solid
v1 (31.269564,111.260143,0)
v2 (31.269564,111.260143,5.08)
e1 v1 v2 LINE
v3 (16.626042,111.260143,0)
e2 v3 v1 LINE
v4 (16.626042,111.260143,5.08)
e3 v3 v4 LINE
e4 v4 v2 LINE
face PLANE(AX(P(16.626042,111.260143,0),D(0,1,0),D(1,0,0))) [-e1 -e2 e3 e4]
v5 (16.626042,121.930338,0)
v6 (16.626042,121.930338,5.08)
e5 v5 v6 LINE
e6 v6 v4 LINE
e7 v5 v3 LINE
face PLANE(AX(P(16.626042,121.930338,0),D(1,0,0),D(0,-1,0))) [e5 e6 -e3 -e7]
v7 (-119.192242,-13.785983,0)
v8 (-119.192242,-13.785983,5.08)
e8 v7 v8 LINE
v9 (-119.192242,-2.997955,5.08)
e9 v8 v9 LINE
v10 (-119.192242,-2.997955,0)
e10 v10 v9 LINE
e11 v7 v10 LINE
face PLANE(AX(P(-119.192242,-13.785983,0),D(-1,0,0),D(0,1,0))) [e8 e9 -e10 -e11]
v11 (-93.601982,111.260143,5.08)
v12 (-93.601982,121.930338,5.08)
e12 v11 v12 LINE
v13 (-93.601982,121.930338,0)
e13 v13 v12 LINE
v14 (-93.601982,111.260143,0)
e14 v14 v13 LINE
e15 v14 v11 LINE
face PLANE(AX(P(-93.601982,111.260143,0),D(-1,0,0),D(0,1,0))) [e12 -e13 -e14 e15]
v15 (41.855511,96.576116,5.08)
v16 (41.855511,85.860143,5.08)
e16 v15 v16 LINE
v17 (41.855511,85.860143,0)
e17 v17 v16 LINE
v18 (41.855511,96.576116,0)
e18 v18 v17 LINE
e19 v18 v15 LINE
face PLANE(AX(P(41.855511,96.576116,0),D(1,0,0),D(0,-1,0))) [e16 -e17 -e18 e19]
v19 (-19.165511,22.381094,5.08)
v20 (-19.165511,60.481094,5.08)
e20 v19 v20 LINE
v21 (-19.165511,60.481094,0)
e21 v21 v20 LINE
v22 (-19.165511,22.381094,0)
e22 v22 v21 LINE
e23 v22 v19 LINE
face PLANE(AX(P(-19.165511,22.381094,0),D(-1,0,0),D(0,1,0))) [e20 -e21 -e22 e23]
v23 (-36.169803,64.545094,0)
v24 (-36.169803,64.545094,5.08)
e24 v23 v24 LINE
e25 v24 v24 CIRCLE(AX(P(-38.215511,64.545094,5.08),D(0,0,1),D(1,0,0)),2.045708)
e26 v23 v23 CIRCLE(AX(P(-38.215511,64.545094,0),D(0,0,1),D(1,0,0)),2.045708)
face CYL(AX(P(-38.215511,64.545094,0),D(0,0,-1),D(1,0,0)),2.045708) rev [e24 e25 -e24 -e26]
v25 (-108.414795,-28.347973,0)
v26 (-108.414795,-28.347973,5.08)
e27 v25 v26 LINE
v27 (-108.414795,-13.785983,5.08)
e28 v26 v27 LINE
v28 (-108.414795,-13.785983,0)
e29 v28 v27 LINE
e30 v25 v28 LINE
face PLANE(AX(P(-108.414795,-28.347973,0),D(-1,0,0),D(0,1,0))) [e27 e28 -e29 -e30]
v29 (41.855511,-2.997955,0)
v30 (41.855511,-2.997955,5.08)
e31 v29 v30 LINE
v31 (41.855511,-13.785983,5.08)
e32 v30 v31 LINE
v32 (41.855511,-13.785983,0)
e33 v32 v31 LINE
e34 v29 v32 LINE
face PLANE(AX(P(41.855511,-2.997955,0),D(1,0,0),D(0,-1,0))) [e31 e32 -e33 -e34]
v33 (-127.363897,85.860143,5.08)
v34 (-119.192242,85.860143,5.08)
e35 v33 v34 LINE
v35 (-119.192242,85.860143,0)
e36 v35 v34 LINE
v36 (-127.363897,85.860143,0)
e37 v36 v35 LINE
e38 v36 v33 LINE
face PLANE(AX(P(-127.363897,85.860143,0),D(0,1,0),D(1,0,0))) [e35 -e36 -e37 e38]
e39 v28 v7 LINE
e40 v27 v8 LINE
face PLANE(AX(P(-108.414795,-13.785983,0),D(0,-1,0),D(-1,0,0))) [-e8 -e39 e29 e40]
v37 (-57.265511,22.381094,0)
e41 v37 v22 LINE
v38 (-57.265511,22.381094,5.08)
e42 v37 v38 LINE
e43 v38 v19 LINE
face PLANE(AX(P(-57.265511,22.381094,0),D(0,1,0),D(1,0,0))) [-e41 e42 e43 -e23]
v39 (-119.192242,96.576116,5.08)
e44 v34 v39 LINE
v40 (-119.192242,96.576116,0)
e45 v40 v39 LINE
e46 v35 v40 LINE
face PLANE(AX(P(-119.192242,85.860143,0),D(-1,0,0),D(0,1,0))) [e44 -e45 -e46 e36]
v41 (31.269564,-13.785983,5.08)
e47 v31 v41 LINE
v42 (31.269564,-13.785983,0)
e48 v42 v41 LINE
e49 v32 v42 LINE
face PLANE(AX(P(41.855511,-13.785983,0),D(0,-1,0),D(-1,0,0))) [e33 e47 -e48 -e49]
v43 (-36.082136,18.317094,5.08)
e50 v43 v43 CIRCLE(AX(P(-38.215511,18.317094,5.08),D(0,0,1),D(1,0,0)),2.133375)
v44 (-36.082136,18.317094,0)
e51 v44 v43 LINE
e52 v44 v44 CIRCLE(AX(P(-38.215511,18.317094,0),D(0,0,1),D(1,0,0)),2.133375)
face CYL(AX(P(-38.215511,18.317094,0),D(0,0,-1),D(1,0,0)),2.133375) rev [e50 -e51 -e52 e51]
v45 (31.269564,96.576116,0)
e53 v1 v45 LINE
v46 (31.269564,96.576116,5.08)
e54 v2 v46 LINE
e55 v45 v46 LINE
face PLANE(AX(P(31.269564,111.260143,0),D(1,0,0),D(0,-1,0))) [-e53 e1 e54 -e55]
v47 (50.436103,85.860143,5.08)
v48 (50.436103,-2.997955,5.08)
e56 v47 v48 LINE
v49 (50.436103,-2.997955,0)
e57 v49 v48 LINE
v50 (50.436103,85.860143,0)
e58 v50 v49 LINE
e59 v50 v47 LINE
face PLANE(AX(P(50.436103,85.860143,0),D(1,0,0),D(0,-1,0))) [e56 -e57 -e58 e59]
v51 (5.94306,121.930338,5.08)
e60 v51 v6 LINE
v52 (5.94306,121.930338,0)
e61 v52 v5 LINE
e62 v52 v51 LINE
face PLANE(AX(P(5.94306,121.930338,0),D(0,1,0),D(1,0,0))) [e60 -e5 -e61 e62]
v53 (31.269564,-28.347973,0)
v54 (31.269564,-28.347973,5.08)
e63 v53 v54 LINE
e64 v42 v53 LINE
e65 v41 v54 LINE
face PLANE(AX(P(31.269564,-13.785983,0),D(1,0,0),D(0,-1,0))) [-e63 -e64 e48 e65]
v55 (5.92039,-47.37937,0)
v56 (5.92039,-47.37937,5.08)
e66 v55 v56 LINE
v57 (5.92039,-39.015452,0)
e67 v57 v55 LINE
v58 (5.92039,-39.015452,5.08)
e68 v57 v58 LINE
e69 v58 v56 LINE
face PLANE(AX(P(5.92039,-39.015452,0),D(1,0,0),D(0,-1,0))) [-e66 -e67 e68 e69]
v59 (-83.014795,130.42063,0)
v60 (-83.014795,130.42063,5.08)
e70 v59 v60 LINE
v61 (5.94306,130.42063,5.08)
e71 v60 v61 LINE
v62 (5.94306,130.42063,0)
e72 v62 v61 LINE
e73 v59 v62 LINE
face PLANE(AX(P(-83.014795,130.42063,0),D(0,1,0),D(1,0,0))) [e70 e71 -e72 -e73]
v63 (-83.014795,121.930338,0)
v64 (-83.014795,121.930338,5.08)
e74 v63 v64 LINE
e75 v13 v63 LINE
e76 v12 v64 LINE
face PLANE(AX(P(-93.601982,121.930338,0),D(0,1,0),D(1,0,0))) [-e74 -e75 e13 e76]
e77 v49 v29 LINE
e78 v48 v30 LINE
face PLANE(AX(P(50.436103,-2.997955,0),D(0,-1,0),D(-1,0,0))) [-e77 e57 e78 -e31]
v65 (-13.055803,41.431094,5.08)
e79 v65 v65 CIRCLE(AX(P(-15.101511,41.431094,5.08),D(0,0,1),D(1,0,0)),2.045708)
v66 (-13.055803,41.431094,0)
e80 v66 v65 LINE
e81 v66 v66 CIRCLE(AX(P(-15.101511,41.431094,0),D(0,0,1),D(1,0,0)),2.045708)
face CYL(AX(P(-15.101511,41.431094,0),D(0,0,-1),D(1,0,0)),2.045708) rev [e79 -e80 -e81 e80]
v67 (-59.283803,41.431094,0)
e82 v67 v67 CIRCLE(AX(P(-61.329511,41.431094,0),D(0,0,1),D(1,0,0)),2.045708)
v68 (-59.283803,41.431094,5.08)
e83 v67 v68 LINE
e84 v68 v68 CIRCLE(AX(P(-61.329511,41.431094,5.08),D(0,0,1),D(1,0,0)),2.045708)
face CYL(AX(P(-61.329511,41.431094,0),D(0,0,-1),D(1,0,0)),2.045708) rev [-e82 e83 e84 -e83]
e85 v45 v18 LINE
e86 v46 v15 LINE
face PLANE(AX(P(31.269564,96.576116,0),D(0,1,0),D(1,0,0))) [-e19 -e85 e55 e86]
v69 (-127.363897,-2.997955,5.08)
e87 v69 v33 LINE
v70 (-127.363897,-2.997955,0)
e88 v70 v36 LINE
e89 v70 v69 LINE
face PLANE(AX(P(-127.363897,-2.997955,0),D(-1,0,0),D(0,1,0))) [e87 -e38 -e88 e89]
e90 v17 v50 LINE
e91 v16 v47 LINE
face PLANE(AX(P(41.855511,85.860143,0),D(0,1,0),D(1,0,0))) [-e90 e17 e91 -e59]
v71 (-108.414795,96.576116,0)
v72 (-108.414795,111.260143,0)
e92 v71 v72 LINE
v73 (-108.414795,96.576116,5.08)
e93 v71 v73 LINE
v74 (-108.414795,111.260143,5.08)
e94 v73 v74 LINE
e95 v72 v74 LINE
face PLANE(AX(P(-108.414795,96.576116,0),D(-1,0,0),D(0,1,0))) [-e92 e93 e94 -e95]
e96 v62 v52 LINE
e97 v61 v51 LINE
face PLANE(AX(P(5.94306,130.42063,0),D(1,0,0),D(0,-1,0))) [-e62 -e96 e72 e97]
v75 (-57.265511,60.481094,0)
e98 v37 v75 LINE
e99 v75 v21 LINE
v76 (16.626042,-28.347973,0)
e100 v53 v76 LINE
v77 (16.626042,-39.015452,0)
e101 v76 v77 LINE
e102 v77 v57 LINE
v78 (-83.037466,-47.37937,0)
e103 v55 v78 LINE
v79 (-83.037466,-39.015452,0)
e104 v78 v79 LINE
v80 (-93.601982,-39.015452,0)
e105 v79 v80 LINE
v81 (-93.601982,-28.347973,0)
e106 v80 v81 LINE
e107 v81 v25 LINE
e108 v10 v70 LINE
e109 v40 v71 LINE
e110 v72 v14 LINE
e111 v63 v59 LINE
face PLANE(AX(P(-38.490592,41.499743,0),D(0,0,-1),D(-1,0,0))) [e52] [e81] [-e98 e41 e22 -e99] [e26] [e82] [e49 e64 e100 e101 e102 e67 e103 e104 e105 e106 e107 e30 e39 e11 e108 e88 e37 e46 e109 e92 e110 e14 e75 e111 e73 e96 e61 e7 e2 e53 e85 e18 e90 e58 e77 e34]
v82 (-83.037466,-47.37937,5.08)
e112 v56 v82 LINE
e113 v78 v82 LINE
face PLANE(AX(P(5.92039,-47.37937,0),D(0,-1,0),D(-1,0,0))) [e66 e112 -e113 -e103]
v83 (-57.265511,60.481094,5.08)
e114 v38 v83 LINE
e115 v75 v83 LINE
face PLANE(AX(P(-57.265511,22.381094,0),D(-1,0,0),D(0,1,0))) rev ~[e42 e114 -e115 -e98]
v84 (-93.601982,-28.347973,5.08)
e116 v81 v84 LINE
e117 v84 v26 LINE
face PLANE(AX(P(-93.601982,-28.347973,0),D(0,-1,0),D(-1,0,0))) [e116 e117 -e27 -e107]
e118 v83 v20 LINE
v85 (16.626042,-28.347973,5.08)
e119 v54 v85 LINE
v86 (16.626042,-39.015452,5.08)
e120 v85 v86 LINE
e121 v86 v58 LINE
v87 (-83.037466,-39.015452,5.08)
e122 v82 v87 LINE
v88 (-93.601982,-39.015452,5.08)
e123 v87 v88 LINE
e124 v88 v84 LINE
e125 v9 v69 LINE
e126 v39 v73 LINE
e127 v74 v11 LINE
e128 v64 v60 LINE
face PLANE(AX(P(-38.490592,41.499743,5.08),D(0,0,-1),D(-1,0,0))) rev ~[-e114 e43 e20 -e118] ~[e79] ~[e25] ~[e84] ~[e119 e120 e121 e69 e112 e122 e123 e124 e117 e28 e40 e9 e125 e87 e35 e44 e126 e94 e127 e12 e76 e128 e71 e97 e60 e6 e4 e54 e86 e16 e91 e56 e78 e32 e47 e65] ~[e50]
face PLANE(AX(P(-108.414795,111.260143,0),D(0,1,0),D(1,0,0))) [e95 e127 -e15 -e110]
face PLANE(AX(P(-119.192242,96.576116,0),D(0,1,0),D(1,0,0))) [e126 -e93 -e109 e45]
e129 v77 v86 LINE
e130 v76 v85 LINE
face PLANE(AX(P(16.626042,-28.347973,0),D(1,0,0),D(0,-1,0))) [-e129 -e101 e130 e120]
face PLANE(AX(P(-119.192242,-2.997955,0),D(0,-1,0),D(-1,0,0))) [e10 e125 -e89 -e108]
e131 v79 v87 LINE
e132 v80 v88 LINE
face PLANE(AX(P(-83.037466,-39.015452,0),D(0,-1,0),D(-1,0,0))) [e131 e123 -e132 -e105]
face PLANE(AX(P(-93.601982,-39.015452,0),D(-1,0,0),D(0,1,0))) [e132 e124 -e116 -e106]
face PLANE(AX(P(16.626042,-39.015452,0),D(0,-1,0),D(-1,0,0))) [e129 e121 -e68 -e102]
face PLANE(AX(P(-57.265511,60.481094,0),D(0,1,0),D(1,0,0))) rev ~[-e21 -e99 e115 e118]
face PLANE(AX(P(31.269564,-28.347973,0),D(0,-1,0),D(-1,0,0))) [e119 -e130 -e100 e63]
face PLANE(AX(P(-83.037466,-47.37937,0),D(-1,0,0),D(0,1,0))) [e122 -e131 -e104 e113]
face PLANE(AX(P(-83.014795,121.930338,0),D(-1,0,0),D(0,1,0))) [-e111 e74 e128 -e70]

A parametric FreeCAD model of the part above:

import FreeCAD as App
import Part
import Sketcher
Q = App.Units.Quantity

doc = App.newDocument("Part")
body = doc.addObject("PartDesign::Body", "Body")

sketch1 = doc.addObject("Sketcher::SketchObject", "Sketch")
body.addObject(sketch1)
sketch1.AttachmentSupport = (doc.XY_Plane, [""])
sketch1.MapMode = "FlatFace"
sketch1.addGeometry(Part.LineSegment(App.Vector(5.94306, 130.42063, 0), App.Vector(-83.014795, 130.42063, 0)), False)
sketch1.addGeometry(Part.LineSegment(App.Vector(-83.014795, 130.42063, 0), App.Vector(-83.014795, 121.930338, 0)), False)
sketch1.addGeometry(Part.LineSegment(App.Vector(-83.014795, 121.930338, 0), App.Vector(-93.601982, 121.930338, 0)), False)
sketch1.addGeometry(Part.LineSegment(App.Vector(-93.601982, 121.930338, 0), App.Vector(-93.601982, 111.260143, 0)), False)
sketch1.addGeometry(Part.LineSegment(App.Vector(-93.601982, 111.260143, 0), App.Vector(-108.414795, 111.260143, 0)), False)
sketch1.addGeometry(Part.LineSegment(App.Vector(-108.414795, 111.260143, 0), App.Vector(-108.414795, 96.576116, 0)), False)
sketch1.addGeometry(Part.LineSegment(App.Vector(-108.414795, 96.576116, 0), App.Vector(-119.192242, 96.576116, 0)), False)
sketch1.addGeometry(Part.LineSegment(App.Vector(-119.192242, 96.576116, 0), App.Vector(-119.192242, 85.860143, 0)), False)
sketch1.addGeometry(Part.LineSegment(App.Vector(-119.192242, 85.860143, 0), App.Vector(-127.363897, 85.860143, 0)), False)
sketch1.addGeometry(Part.LineSegment(App.Vector(-127.363897, 85.860143, 0), App.Vector(-127.363897, -2.997955, 0)), False)
sketch1.addGeometry(Part.LineSegment(App.Vector(-127.363897, -2.997955, 0), App.Vector(-119.192242, -2.997955, 0)), False)
sketch1.addGeometry(Part.LineSegment(App.Vector(-119.192242, -2.997955, 0), App.Vector(-119.192242, -13.785983, 0)), False)
sketch1.addGeometry(Part.LineSegment(App.Vector(-119.192242, -13.785983, 0), App.Vector(-108.414795, -13.785983, 0)), False)
sketch1.addGeometry(Part.LineSegment(App.Vector(-108.414795, -13.785983, 0), App.Vector(-108.414795, -28.347973, 0)), False)
sketch1.addGeometry(Part.LineSegment(App.Vector(-108.414795, -28.347973, 0), App.Vector(-93.601982, -28.347973, 0)), False)
sketch1.addGeometry(Part.LineSegment(App.Vector(-93.601982, -28.347973, 0), App.Vector(-93.601982, -39.015452, 0)), False)
sketch1.addGeometry(Part.LineSegment(App.Vector(-93.601982, -39.015452, 0), App.Vector(-83.037466, -39.015452, 0)), False)
sketch1.addGeometry(Part.LineSegment(App.Vector(-83.037466, -39.015452, 0), App.Vector(-83.037466, -47.37937, 0)), False)
sketch1.addGeometry(Part.LineSegment(App.Vector(-83.037466, -47.37937, 0), App.Vector(5.92039, -47.37937, 0)), False)
sketch1.addGeometry(Part.LineSegment(App.Vector(5.92039, -47.37937, 0), App.Vector(5.92039, -39.015452, 0)), False)
sketch1.addGeometry(Part.LineSegment(App.Vector(5.92039, -39.015452, 0), App.Vector(16.626042, -39.015452, 0)), False)
sketch1.addGeometry(Part.LineSegment(App.Vector(16.626042, -39.015452, 0), App.Vector(16.626042, -28.347973, 0)), False)
sketch1.addGeometry(Part.LineSegment(App.Vector(16.626042, -28.347973, 0), App.Vector(31.269564, -28.347973, 0)), False)
sketch1.addGeometry(Part.LineSegment(App.Vector(31.269564, -28.347973, 0), App.Vector(31.269564, -13.785983, 0)), False)
sketch1.addGeometry(Part.LineSegment(App.Vector(31.269564, -13.785983, 0), App.Vector(41.855511, -13.785983, 0)), False)
sketch1.addGeometry(Part.LineSegment(App.Vector(41.855511, -13.785983, 0), App.Vector(41.855511, -2.997955, 0)), False)
sketch1.addGeometry(Part.LineSegment(App.Vector(41.855511, -2.997955, 0), App.Vector(50.436103, -2.997955, 0)), False)
sketch1.addGeometry(Part.LineSegment(App.Vector(50.436103, -2.997955, 0), App.Vector(50.436103, 85.860143, 0)), False)
sketch1.addGeometry(Part.LineSegment(App.Vector(50.436103, 85.860143, 0), App.Vector(41.855511, 85.860143, 0)), False)
sketch1.addGeometry(Part.LineSegment(App.Vector(41.855511, 85.860143, 0), App.Vector(41.855511, 96.576116, 0)), False)
sketch1.addGeometry(Part.LineSegment(App.Vector(41.855511, 96.576116, 0), App.Vector(31.269564, 96.576116, 0)), False)
sketch1.addGeometry(Part.LineSegment(App.Vector(31.269564, 96.576116, 0), App.Vector(31.269564, 111.260143, 0)), False)
sketch1.addGeometry(Part.LineSegment(App.Vector(31.269564, 111.260143, 0), App.Vector(16.626042, 111.260143, 0)), False)
sketch1.addGeometry(Part.LineSegment(App.Vector(16.626042, 111.260143, 0), App.Vector(16.626042, 121.930338, 0)), False)
sketch1.addGeometry(Part.LineSegment(App.Vector(16.626042, 121.930338, 0), App.Vector(5.94306, 121.930338, 0)), False)
sketch1.addGeometry(Part.LineSegment(App.Vector(5.94306, 121.930338, 0), App.Vector(5.94306, 130.42063, 0)), False)
sketch1.addGeometry(Part.Circle(App.Vector(-38.215511, 18.317094, 0), App.Vector(0, 0, 1), 2.133375), False)
sketch1.addGeometry(Part.Circle(App.Vector(-15.101511, 41.431094, 0), App.Vector(0, 0, 1), 2.045708), False)
sketch1.addGeometry(Part.LineSegment(App.Vector(-57.265511, 22.381094, 0), App.Vector(-57.265511, 60.481094, 0)), False)
sketch1.addGeometry(Part.LineSegment(App.Vector(-57.265511, 60.481094, 0), App.Vector(-19.165511, 60.481094, 0)), False)
sketch1.addGeometry(Part.LineSegment(App.Vector(-19.165511, 60.481094, 0), App.Vector(-19.165511, 22.381094, 0)), False)
sketch1.addGeometry(Part.LineSegment(App.Vector(-19.165511, 22.381094, 0), App.Vector(-57.265511, 22.381094, 0)), False)
sketch1.addGeometry(Part.Circle(App.Vector(-61.329511, 41.431094, 0), App.Vector(0, 0, 1), 2.045708), False)
sketch1.addGeometry(Part.Circle(App.Vector(-38.215511, 64.545094, 0), App.Vector(0, 0, 1), 2.045708), False)
sketch1.addConstraint(Sketcher.Constraint("Coincident", 0, 2, 1, 1))
sketch1.addConstraint(Sketcher.Constraint("Coincident", 1, 2, 2, 1))
sketch1.addConstraint(Sketcher.Constraint("Coincident", 2, 2, 3, 1))
sketch1.addConstraint(Sketcher.Constraint("Coincident", 3, 2, 4, 1))
sketch1.addConstraint(Sketcher.Constraint("Coincident", 4, 2, 5, 1))
sketch1.addConstraint(Sketcher.Constraint("Coincident", 5, 2, 6, 1))
sketch1.addConstraint(Sketcher.Constraint("Coincident", 6, 2, 7, 1))
sketch1.addConstraint(Sketcher.Constraint("Coincident", 7, 2, 8, 1))
sketch1.addConstraint(Sketcher.Constraint("Coincident", 8, 2, 9, 1))
sketch1.addConstraint(Sketcher.Constraint("Coincident", 9, 2, 10, 1))
sketch1.addConstraint(Sketcher.Constraint("Coincident", 10, 2, 11, 1))
sketch1.addConstraint(Sketcher.Constraint("Coincident", 11, 2, 12, 1))
sketch1.addConstraint(Sketcher.Constraint("Coincident", 12, 2, 13, 1))
sketch1.addConstraint(Sketcher.Constraint("Coincident", 13, 2, 14, 1))
sketch1.addConstraint(Sketcher.Constraint("Coincident", 14, 2, 15, 1))
sketch1.addConstraint(Sketcher.Constraint("Coincident", 15, 2, 16, 1))
sketch1.addConstraint(Sketcher.Constraint("Coincident", 16, 2, 17, 1))
sketch1.addConstraint(Sketcher.Constraint("Coincident", 17, 2, 18, 1))
sketch1.addConstraint(Sketcher.Constraint("Coincident", 18, 2, 19, 1))
sketch1.addConstraint(Sketcher.Constraint("Coincident", 19, 2, 20, 1))
sketch1.addConstraint(Sketcher.Constraint("Coincident", 20, 2, 21, 1))
sketch1.addConstraint(Sketcher.Constraint("Coincident", 21, 2, 22, 1))
sketch1.addConstraint(Sketcher.Constraint("Coincident", 22, 2, 23, 1))
sketch1.addConstraint(Sketcher.Constraint("Coincident", 23, 2, 24, 1))
sketch1.addConstraint(Sketcher.Constraint("Coincident", 24, 2, 25, 1))
sketch1.addConstraint(Sketcher.Constraint("Coincident", 25, 2, 26, 1))
sketch1.addConstraint(Sketcher.Constraint("Coincident", 26, 2, 27, 1))
sketch1.addConstraint(Sketcher.Constraint("Coincident", 27, 2, 28, 1))
sketch1.addConstraint(Sketcher.Constraint("Coincident", 28, 2, 29, 1))
sketch1.addConstraint(Sketcher.Constraint("Coincident", 29, 2, 30, 1))
sketch1.addConstraint(Sketcher.Constraint("Coincident", 30, 2, 31, 1))
sketch1.addConstraint(Sketcher.Constraint("Coincident", 31, 2, 32, 1))
sketch1.addConstraint(Sketcher.Constraint("Coincident", 32, 2, 33, 1))
sketch1.addConstraint(Sketcher.Constraint("Coincident", 33, 2, 34, 1))
sketch1.addConstraint(Sketcher.Constraint("Coincident", 34, 2, 35, 1))
sketch1.addConstraint(Sketcher.Constraint("Coincident", 35, 2, 0, 1))
sketch1.addConstraint(Sketcher.Constraint("Coincident", 38, 2, 39, 1))
sketch1.addConstraint(Sketcher.Constraint("Coincident", 39, 2, 40, 1))
sketch1.addConstraint(Sketcher.Constraint("Coincident", 40, 2, 41, 1))
sketch1.addConstraint(Sketcher.Constraint("Coincident", 41, 2, 38, 1))
sketch1.addConstraint(Sketcher.Constraint("Horizontal", 0))
sketch1.addConstraint(Sketcher.Constraint("Vertical", 1))
sketch1.addConstraint(Sketcher.Constraint("Horizontal", 2))
sketch1.addConstraint(Sketcher.Constraint("Vertical", 3))
sketch1.addConstraint(Sketcher.Constraint("Horizontal", 4))
sketch1.addConstraint(Sketcher.Constraint("Vertical", 5))
sketch1.addConstraint(Sketcher.Constraint("Horizontal", 6))
sketch1.addConstraint(Sketcher.Constraint("Vertical", 7))
sketch1.addConstraint(Sketcher.Constraint("Horizontal", 8))
sketch1.addConstraint(Sketcher.Constraint("Vertical", 9))
sketch1.addConstraint(Sketcher.Constraint("Horizontal", 10))
sketch1.addConstraint(Sketcher.Constraint("Vertical", 11))
sketch1.addConstraint(Sketcher.Constraint("Horizontal", 12))
sketch1.addConstraint(Sketcher.Constraint("Vertical", 13))
sketch1.addConstraint(Sketcher.Constraint("Horizontal", 14))
sketch1.addConstraint(Sketcher.Constraint("Vertical", 15))
sketch1.addConstraint(Sketcher.Constraint("Horizontal", 16))
sketch1.addConstraint(Sketcher.Constraint("Vertical", 17))
sketch1.addConstraint(Sketcher.Constraint("Horizontal", 18))
sketch1.addConstraint(Sketcher.Constraint("Vertical", 19))
sketch1.addConstraint(Sketcher.Constraint("Horizontal", 20))
sketch1.addConstraint(Sketcher.Constraint("Vertical", 21))
sketch1.addConstraint(Sketcher.Constraint("Horizontal", 22))
sketch1.addConstraint(Sketcher.Constraint("Vertical", 23))
sketch1.addConstraint(Sketcher.Constraint("Horizontal", 24))
sketch1.addConstraint(Sketcher.Constraint("Vertical", 25))
sketch1.addConstraint(Sketcher.Constraint("Horizontal", 26))
sketch1.addConstraint(Sketcher.Constraint("Vertical", 27))
sketch1.addConstraint(Sketcher.Constraint("Horizontal", 28))
sketch1.addConstraint(Sketcher.Constraint("Vertical", 29))
sketch1.addConstraint(Sketcher.Constraint("Horizontal", 30))
sketch1.addConstraint(Sketcher.Constraint("Vertical", 31))
sketch1.addConstraint(Sketcher.Constraint("Horizontal", 32))
sketch1.addConstraint(Sketcher.Constraint("Vertical", 33))
sketch1.addConstraint(Sketcher.Constraint("Horizontal", 34))
sketch1.addConstraint(Sketcher.Constraint("Vertical", 35))
sketch1.addConstraint(Sketcher.Constraint("Vertical", 38))
sketch1.addConstraint(Sketcher.Constraint("Horizontal", 39))
sketch1.addConstraint(Sketcher.Constraint("Vertical", 40))
sketch1.addConstraint(Sketcher.Constraint("Horizontal", 41))
sketch1.addConstraint(Sketcher.Constraint("Equal", 37, 42))
sketch1.addConstraint(Sketcher.Constraint("Equal", 42, 43))
sketch1.addConstraint(Sketcher.Constraint("Horizontal", 37, 3, 42, 3))
sketch1.addConstraint(Sketcher.Constraint("Horizontal", 16, 2, 19, 2))
sketch1.addConstraint(Sketcher.Constraint("Horizontal", 14, 2, 21, 2))
sketch1.addConstraint(Sketcher.Constraint("Horizontal", 12, 2, 23, 2))
sketch1.addConstraint(Sketcher.Constraint("Horizontal", 10, 2, 25, 2))
sketch1.addConstraint(Sketcher.Constraint("Horizontal", 8, 2, 27, 2))
sketch1.addConstraint(Sketcher.Constraint("Horizontal", 6, 2, 29, 2))
sketch1.addConstraint(Sketcher.Constraint("Horizontal", 4, 2, 31, 2))
sketch1.addConstraint(Sketcher.Constraint("Horizontal", 2, 2, 33, 2))
sketch1.addConstraint(Sketcher.Constraint("Vertical", 36, 3, 43, 3))
sketch1.addConstraint(Sketcher.Constraint("Vertical", 7, 2, 10, 2))
sketch1.addConstraint(Sketcher.Constraint("Vertical", 5, 2, 12, 2))
sketch1.addConstraint(Sketcher.Constraint("Vertical", 3, 2, 14, 2))
sketch1.addConstraint(Sketcher.Constraint("Vertical", 25, 2, 28, 2))
sketch1.addConstraint(Sketcher.Constraint("Vertical", 23, 2, 30, 2))
sketch1.addConstraint(Sketcher.Constraint("Vertical", 21, 2, 32, 2))
sketch1.addConstraint(Sketcher.Constraint("Equal", 0, 18))
sketch1.addConstraint(Sketcher.Constraint("Equal", 41, 38))
sketch1.addConstraint(Sketcher.Constraint("DistanceX", 39, 1, 39, 2, Q("1.5 in")))
sketch1.addConstraint(Sketcher.Constraint("DistanceX", 4, 2, 1, 2, Q("1 in")))
sketch1.addConstraint(Sketcher.Constraint("DistanceY", 7, 2, 4, 2, Q("1 in")))
sketch1.addConstraint(Sketcher.Constraint("DistanceX", 36, 3, 37, 3, Q("0.91 in")))
sketch1.addConstraint(Sketcher.Constraint("DistanceY", 36, 3, 37, 3, Q("0.91 in")))
sketch1.addConstraint(Sketcher.Constraint("DistanceX", 42, 3, 36, 3, Q("0.91 in")))
sketch1.addConstraint(Sketcher.Constraint("DistanceY", 42, 3, 43, 3, Q("0.91 in")))
sketch1.addConstraint(Sketcher.Constraint("DistanceX", 42, 3, 38, 2, Q("0.16 in")))
sketch1.addConstraint(Sketcher.Constraint("DistanceY", 42, 3, 38, 2, Q("0.75 in")))
sketch1.addConstraint(Sketcher.Constraint("Diameter", 36, Q("4.26675 mm")))
sketch1.addConstraint(Sketcher.Constraint("Diameter", 37, Q("4.091416 mm")))
sketch1.addConstraint(Sketcher.Constraint("DistanceY", 9, 2, 9, 1, Q("88.858098 mm")))
sketch1.addConstraint(Sketcher.Constraint("DistanceX", 22, 1, 22, 2, Q("14.643522 mm")))
sketch1.addConstraint(Sketcher.Constraint("DistanceX", 34, 2, 34, 1, Q("10.682981 mm")))
sketch1.addConstraint(Sketcher.Constraint("DistanceY", 11, 2, 11, 1, Q("10.788028 mm")))
sketch1.addConstraint(Sketcher.Constraint("DistanceY", 13, 2, 13, 1, Q("14.561989 mm")))
sketch1.addConstraint(Sketcher.Constraint("DistanceY", 15, 2, 15, 1, Q("10.66748 mm")))
sketch1.addConstraint(Sketcher.Constraint("DistanceX", 8, 2, 5, 2, Q("18.949102 mm")))
sketch1.addConstraint(Sketcher.Constraint("DistanceX", 36, 3, 18, 2, Q("44.1359 mm")))
sketch1.addConstraint(Sketcher.Constraint("DistanceX", 0, 2, 0, 1, Q("88.957856 mm")))
sketch1.addConstraint(Sketcher.Constraint("DistanceX", 2, 2, 2, 1, Q("10.587187 mm")))
sketch1.addConstraint(Sketcher.Constraint("DistanceX", 6, 2, 6, 1, Q("10.777446 mm")))
sketch1.addConstraint(Sketcher.Constraint("DistanceX", 16, 1, 16, 2, Q("10.564516 mm")))
sketch1.addConstraint(Sketcher.Constraint("DistanceX", 24, 1, 24, 2, Q("10.585947 mm")))
sketch1.addConstraint(Sketcher.Constraint("DistanceX", 26, 1, 26, 2, Q("8.580592 mm")))
sketch1.addConstraint(Sketcher.Constraint("DistanceY", 1, 2, 1, 1, Q("8.490292 mm")))
sketch1.addConstraint(Sketcher.Constraint("DistanceY", 3, 2, 3, 1, Q("10.670195 mm")))
sketch1.addConstraint(Sketcher.Constraint("DistanceY", 5, 2, 5, 1, Q("14.684027 mm")))
sketch1.addConstraint(Sketcher.Constraint("DistanceY", 17, 2, 17, 1, Q("8.363917 mm")))
sketch1.addConstraint(Sketcher.Constraint("DistanceX", 36, 3, -1, 1, Q("38.215511 mm")))
sketch1.addConstraint(Sketcher.Constraint("DistanceY", -1, 1, 0, 2, Q("130.42063 mm")))
sketch1.addConstraint(Sketcher.Constraint("DistanceY", 43, 3, 3, 2, Q("46.715049 mm")))
pad1 = doc.addObject("PartDesign::Pad", "Pad")
body.addObject(pad1)
pad1.Profile = sketch1
pad1.Length = Q("0.2 in")

doc.recompute()
